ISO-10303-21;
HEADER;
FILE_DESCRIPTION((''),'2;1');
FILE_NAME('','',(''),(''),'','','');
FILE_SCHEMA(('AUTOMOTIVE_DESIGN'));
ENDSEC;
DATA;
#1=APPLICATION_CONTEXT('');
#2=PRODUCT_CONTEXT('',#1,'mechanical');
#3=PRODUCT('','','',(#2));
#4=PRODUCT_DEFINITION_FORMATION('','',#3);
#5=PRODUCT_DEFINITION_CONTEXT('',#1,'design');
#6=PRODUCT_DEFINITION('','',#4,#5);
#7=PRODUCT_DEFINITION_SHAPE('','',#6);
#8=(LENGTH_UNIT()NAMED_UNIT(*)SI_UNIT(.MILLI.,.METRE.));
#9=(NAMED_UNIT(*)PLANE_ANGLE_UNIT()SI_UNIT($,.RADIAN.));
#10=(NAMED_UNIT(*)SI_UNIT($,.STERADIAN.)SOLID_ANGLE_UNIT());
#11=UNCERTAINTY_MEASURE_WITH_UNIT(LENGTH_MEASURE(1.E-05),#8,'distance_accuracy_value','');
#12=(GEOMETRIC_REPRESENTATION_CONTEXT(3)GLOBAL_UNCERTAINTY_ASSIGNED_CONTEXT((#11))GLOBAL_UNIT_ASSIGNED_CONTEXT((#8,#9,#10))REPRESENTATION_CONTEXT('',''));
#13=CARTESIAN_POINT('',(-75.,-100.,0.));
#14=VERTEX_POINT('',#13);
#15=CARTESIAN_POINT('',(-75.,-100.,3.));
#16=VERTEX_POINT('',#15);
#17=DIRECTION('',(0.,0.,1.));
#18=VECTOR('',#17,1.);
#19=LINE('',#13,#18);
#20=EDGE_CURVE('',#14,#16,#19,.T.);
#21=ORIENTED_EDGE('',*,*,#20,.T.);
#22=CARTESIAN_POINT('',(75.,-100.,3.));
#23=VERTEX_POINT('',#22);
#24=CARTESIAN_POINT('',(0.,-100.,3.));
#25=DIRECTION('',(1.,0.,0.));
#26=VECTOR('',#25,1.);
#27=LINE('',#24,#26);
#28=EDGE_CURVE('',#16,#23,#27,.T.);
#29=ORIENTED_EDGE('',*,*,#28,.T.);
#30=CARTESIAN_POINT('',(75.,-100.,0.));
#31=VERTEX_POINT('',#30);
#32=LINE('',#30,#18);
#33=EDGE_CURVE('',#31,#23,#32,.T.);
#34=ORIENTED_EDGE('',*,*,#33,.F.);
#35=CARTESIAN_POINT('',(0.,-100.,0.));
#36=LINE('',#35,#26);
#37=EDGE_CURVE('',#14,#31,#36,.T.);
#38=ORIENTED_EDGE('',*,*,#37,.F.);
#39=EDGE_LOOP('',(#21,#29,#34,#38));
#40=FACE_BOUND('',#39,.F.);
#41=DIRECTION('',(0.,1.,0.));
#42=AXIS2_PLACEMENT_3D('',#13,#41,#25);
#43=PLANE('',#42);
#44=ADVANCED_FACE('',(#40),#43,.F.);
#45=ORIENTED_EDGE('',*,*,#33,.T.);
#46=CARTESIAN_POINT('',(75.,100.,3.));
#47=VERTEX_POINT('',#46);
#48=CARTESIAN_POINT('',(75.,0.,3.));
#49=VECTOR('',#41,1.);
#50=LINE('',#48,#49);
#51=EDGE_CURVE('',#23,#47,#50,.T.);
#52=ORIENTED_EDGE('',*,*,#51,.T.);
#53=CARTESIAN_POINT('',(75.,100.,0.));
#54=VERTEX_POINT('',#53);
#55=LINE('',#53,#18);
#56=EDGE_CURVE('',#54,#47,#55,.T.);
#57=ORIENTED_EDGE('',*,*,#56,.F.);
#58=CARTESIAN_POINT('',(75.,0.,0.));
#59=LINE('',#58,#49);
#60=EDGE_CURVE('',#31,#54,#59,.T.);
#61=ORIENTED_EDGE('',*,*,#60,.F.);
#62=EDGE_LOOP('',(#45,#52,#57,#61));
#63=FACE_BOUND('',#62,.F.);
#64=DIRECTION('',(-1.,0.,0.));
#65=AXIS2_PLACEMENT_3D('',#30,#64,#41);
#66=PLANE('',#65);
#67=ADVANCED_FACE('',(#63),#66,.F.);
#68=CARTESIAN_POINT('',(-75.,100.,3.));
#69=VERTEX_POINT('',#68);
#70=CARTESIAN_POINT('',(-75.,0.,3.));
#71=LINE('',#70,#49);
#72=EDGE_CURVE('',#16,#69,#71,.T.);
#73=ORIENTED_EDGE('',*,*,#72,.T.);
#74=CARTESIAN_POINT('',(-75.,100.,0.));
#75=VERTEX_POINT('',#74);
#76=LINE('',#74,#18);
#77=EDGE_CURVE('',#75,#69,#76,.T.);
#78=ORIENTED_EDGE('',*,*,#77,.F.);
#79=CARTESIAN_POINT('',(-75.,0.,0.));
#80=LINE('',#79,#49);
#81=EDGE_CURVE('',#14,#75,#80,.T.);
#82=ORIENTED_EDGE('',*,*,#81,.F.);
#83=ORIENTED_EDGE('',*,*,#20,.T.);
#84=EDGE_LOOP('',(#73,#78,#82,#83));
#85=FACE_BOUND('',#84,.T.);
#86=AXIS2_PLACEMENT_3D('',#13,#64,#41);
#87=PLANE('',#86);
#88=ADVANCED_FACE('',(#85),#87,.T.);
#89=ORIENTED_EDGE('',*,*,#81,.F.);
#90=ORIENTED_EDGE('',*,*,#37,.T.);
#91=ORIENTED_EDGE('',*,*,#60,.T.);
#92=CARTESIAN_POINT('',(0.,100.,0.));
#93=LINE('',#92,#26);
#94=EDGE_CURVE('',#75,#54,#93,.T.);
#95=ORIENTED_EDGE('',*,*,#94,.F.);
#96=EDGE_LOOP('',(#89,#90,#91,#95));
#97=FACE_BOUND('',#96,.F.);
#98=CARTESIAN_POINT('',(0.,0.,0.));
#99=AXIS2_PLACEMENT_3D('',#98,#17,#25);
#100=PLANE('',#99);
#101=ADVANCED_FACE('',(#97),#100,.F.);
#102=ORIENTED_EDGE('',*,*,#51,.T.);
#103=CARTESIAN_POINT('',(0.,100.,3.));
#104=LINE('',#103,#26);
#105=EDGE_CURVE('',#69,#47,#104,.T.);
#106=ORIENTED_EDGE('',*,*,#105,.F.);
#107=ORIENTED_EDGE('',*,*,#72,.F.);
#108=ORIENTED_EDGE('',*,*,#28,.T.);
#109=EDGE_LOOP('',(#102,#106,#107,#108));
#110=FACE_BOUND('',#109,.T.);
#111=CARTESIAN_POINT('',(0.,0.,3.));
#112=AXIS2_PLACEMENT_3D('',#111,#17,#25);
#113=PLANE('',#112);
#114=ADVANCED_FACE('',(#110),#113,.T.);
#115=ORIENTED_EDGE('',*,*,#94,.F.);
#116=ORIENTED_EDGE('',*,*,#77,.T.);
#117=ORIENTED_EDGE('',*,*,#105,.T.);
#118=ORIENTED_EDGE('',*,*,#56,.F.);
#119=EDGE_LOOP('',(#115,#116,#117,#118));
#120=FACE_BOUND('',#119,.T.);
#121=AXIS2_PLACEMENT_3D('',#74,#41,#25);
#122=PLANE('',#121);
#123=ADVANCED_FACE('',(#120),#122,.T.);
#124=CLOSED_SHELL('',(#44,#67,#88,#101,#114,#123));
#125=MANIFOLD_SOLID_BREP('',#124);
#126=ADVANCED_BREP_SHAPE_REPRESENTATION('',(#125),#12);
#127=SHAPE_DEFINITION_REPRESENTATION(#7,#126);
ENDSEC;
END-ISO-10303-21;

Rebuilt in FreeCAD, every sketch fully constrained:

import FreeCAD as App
import Part
import Sketcher

doc = App.newDocument("Part")
body = doc.addObject("PartDesign::Body", "Body")

sketch1 = doc.addObject("Sketcher::SketchObject", "Sketch")
body.addObject(sketch1)
sketch1.AttachmentSupport = (doc.XY_Plane, [""])
sketch1.MapMode = "FlatFace"
sketch1.addGeometry(Part.LineSegment(App.Vector(-75, 100, 0), App.Vector(-75, -100, 0)), False)
sketch1.addGeometry(Part.LineSegment(App.Vector(-75, -100, 0), App.Vector(75, -100, 0)), False)
sketch1.addGeometry(Part.LineSegment(App.Vector(75, -100, 0), App.Vector(75, 100, 0)), False)
sketch1.addGeometry(Part.LineSegment(App.Vector(75, 100, 0), App.Vector(-75, 100, 0)), False)
sketch1.addConstraint(Sketcher.Constraint("Coincident", 0, 2, 1, 1))
sketch1.addConstraint(Sketcher.Constraint("Coincident", 1, 2, 2, 1))
sketch1.addConstraint(Sketcher.Constraint("Coincident", 2, 2, 3, 1))
sketch1.addConstraint(Sketcher.Constraint("Coincident", 3, 2, 0, 1))
sketch1.addConstraint(Sketcher.Constraint("Vertical", 0))
sketch1.addConstraint(Sketcher.Constraint("Horizontal", 1))
sketch1.addConstraint(Sketcher.Constraint("Vertical", 2))
sketch1.addConstraint(Sketcher.Constraint("Horizontal", 3))
sketch1.addConstraint(Sketcher.Constraint("Symmetric", 0, 2, 2, 2, -1, 1))
sketch1.addConstraint(Sketcher.Constraint("DistanceX", 1, 1, 1, 2, 150.0))
sketch1.addConstraint(Sketcher.Constraint("DistanceY", 0, 2, 0, 1, 200.0))
pad1 = doc.addObject("PartDesign::Pad", "Pad")
body.addObject(pad1)
pad1.Profile = sketch1
pad1.Length = 3

doc.recompute()
